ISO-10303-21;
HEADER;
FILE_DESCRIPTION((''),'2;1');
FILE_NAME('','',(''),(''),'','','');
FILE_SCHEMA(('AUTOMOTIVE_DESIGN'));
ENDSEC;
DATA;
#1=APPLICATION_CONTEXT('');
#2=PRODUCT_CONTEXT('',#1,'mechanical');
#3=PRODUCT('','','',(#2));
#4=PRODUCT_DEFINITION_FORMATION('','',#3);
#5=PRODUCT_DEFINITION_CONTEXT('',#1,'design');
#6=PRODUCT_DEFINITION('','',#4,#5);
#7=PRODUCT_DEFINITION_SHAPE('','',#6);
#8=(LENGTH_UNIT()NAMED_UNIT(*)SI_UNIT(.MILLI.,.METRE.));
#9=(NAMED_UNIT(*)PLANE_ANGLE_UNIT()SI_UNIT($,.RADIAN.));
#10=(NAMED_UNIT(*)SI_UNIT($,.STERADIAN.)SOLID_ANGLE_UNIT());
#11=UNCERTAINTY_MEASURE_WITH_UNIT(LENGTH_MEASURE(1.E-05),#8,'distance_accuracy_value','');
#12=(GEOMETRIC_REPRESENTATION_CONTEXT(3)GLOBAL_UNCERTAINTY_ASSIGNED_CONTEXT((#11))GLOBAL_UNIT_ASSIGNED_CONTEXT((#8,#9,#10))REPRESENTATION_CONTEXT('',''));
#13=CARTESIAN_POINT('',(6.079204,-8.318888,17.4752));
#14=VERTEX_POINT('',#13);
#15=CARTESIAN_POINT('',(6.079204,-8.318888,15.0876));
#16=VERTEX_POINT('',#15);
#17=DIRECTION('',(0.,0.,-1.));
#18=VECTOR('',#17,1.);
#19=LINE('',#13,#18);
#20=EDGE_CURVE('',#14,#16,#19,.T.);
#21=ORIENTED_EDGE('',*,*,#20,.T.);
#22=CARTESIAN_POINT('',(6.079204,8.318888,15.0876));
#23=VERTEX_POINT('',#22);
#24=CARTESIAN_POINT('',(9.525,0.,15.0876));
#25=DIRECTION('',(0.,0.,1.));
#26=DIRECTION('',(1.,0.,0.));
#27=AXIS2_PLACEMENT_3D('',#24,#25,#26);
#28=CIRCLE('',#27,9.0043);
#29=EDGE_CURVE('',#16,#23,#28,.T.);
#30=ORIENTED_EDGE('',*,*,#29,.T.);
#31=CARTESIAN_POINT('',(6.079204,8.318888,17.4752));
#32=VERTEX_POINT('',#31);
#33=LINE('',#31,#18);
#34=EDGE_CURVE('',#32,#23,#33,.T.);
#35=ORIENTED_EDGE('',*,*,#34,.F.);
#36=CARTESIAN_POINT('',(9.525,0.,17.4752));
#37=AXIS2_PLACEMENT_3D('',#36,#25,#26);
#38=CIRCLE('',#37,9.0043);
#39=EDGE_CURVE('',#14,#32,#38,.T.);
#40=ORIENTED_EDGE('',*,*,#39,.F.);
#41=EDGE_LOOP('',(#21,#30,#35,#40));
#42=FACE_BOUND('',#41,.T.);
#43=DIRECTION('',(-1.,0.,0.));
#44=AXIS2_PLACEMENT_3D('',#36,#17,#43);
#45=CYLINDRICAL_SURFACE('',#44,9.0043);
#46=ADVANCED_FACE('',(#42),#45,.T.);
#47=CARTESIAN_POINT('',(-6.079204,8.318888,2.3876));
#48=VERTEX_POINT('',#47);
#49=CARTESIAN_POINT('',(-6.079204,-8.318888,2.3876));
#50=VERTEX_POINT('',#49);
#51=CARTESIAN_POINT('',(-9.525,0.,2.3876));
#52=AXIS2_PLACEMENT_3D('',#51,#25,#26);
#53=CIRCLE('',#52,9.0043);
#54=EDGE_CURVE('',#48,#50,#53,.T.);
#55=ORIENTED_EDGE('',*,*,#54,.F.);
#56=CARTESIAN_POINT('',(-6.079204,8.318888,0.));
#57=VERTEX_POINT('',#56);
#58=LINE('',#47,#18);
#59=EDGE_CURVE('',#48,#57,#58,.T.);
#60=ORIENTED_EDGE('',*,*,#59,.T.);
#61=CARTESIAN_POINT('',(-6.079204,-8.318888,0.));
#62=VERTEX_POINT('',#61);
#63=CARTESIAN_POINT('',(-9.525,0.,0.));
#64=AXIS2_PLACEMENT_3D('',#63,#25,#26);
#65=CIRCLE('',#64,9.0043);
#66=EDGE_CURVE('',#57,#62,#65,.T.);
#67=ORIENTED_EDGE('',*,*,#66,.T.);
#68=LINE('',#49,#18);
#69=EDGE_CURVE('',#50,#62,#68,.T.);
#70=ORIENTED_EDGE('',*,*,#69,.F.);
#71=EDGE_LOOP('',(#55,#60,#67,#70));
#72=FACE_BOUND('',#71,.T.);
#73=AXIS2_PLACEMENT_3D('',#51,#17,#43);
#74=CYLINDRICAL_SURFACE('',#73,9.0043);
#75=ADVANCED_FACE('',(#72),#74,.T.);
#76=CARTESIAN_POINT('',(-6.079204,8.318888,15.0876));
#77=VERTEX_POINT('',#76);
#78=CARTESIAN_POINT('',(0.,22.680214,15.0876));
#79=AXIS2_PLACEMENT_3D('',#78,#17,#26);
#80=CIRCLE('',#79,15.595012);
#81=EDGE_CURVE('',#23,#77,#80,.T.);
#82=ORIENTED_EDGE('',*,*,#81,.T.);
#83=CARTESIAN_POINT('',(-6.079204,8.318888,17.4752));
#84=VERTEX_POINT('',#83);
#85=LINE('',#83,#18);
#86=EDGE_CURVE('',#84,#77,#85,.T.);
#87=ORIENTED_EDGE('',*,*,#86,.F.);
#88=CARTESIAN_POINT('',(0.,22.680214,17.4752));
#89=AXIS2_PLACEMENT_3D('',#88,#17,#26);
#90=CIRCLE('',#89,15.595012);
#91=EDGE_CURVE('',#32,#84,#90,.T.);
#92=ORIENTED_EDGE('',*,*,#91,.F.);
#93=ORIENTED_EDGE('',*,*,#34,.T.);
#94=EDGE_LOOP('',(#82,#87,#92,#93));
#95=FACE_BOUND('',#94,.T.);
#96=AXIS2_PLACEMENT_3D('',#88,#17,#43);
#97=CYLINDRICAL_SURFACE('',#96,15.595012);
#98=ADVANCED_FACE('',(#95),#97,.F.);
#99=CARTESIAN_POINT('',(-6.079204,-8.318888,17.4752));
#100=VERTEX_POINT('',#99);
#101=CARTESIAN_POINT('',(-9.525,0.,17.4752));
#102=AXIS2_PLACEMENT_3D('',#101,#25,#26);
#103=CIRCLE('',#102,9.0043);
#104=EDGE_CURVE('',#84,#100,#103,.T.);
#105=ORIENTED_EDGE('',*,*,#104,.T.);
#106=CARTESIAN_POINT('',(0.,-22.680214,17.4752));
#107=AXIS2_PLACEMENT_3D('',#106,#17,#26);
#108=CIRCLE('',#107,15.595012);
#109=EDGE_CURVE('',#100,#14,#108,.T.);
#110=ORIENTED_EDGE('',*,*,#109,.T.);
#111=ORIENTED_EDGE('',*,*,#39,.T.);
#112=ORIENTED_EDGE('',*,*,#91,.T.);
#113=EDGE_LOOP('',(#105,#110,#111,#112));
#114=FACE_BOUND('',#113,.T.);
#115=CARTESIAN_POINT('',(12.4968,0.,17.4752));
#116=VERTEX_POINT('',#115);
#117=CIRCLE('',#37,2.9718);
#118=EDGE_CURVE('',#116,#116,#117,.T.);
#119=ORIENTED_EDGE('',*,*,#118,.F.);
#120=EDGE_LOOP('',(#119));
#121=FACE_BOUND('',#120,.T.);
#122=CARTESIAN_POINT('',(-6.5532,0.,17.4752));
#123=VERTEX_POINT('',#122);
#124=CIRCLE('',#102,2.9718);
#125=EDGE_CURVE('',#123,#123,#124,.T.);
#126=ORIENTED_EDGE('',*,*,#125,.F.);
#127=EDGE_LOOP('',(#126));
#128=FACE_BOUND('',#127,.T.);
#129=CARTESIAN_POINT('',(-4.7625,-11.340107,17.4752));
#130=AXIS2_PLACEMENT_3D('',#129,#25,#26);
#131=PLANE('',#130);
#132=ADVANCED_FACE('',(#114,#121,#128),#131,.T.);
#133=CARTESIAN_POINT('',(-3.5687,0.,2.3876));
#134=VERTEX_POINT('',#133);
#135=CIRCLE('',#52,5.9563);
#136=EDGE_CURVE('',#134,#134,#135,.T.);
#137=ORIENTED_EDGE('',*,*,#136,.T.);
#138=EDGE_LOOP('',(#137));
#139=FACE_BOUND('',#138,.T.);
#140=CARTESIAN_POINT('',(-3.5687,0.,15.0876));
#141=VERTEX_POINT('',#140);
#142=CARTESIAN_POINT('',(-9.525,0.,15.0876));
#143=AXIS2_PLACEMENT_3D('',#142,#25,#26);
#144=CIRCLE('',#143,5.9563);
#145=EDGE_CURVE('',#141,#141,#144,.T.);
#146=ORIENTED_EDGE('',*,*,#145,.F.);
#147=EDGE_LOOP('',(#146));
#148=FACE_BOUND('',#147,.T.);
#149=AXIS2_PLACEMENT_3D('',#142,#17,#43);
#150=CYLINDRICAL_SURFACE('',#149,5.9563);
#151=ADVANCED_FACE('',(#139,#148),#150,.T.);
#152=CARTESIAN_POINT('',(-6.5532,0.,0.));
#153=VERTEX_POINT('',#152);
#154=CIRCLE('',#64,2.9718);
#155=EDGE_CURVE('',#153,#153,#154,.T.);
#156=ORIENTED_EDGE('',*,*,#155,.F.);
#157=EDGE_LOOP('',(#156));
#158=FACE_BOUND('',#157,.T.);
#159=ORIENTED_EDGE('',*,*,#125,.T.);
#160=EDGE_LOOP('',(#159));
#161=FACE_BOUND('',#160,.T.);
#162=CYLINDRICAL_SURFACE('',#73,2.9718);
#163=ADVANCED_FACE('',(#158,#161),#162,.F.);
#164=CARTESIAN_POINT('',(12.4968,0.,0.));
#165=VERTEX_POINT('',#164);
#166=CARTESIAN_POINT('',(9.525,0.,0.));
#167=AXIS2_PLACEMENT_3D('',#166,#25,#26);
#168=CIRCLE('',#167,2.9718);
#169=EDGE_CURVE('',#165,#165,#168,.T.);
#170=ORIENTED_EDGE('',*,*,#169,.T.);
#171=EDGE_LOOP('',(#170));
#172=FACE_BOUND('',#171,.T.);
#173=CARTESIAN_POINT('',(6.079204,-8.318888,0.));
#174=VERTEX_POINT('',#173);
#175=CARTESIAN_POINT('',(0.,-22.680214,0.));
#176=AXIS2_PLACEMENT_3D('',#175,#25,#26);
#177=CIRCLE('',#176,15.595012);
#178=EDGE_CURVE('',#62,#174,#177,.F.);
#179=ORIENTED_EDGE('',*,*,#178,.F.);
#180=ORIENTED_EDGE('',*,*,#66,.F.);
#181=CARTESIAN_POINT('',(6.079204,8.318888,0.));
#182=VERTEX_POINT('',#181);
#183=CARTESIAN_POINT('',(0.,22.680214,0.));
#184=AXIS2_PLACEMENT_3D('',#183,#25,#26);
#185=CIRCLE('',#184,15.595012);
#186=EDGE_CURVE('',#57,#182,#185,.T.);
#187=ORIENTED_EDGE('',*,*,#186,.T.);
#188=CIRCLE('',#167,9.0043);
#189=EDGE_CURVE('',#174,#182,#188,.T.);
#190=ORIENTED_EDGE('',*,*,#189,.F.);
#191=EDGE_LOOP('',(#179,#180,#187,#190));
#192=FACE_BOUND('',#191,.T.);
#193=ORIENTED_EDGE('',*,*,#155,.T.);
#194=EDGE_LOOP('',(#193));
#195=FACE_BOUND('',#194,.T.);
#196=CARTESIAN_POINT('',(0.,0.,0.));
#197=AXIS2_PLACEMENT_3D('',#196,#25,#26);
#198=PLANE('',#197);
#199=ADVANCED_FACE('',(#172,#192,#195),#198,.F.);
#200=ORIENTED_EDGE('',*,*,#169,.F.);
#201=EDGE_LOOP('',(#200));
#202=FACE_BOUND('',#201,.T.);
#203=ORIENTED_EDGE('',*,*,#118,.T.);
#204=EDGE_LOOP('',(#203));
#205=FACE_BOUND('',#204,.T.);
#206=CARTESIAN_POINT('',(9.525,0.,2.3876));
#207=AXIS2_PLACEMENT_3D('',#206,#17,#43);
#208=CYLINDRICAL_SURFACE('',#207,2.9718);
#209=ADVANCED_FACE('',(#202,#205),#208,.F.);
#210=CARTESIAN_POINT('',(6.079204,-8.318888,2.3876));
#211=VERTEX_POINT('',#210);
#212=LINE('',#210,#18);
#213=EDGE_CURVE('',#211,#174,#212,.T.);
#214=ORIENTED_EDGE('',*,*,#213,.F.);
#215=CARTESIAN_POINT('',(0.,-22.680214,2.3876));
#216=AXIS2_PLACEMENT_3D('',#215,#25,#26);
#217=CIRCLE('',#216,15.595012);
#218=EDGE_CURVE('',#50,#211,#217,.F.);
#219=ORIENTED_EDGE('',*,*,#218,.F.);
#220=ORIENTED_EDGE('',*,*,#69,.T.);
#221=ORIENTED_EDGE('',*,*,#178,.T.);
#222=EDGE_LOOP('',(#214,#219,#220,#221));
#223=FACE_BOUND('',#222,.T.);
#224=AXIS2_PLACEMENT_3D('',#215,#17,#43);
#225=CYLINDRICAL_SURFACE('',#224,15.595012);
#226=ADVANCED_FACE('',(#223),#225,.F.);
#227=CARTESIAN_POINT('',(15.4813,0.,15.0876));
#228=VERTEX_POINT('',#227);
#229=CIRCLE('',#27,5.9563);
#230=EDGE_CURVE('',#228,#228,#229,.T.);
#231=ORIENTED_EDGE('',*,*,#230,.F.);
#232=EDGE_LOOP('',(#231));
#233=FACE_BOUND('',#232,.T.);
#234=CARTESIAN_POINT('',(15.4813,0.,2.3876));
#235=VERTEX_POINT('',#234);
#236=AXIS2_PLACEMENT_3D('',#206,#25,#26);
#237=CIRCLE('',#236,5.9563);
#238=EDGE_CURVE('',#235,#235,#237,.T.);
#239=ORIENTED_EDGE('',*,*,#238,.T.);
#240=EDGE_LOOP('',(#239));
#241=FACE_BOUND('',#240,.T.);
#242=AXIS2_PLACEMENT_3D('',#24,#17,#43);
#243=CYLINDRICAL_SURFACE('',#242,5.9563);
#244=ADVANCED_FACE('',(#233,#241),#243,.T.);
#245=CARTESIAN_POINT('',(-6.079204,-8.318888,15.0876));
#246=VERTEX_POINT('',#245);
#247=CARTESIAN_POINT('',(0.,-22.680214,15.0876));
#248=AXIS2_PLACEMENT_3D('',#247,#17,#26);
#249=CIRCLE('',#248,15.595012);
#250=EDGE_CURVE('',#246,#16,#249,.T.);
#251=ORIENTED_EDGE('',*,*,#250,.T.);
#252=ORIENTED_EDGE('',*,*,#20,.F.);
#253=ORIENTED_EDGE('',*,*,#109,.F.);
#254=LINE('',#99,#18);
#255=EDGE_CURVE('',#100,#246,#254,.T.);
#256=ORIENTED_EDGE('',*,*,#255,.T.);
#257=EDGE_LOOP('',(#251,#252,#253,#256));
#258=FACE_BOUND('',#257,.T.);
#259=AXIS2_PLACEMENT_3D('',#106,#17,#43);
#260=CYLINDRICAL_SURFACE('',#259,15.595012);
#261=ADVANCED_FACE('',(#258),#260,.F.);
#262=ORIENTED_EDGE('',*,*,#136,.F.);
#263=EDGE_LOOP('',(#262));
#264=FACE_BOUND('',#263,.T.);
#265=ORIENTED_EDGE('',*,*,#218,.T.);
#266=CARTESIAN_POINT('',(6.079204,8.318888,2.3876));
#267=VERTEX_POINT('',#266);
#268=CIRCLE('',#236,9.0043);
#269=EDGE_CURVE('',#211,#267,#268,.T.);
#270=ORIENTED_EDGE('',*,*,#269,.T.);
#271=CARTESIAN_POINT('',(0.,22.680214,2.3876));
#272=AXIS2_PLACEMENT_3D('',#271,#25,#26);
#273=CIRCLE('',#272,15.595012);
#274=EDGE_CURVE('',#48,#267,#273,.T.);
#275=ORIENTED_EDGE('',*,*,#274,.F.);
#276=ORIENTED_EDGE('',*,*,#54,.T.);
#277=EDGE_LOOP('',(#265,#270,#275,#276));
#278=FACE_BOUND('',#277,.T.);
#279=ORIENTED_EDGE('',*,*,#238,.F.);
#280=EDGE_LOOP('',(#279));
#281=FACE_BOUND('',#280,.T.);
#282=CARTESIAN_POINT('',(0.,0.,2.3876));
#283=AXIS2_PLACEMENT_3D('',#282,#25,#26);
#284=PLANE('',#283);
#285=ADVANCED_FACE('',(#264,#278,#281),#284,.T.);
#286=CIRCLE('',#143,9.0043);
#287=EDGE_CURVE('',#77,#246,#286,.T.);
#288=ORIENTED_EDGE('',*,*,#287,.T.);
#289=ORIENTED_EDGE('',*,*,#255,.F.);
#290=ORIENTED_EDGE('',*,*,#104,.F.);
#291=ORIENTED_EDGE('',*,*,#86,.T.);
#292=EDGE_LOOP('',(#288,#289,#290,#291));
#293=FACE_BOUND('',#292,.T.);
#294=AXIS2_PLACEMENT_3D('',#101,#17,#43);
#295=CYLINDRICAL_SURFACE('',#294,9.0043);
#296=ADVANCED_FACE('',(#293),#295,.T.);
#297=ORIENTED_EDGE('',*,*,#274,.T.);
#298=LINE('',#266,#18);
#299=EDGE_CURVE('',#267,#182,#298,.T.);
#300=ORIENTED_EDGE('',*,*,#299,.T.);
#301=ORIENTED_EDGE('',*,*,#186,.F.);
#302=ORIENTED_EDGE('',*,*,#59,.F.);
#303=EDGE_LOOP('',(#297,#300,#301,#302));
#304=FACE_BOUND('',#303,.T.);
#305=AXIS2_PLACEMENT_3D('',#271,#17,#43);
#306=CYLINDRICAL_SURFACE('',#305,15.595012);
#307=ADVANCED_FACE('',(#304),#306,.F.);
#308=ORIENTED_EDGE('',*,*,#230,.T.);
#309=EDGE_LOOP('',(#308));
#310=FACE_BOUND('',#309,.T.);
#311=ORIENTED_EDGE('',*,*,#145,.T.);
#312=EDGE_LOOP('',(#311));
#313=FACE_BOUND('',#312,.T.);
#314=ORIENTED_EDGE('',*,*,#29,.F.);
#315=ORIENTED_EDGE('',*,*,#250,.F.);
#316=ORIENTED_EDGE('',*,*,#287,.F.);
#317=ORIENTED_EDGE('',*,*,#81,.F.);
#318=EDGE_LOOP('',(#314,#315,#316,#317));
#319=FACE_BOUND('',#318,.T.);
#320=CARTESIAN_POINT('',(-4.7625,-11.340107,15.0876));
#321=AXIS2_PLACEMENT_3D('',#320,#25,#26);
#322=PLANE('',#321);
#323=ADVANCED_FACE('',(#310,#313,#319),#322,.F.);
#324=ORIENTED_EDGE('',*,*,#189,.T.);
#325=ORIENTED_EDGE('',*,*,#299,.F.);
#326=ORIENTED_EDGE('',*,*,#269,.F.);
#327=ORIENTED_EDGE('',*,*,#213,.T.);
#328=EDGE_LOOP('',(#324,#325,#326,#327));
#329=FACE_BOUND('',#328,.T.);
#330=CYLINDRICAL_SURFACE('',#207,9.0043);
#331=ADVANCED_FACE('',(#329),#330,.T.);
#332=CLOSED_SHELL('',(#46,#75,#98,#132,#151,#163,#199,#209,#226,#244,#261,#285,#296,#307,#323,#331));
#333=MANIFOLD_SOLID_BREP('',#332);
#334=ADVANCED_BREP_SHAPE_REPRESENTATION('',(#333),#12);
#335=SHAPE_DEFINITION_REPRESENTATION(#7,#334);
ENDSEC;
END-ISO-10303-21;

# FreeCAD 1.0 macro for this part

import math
import FreeCAD as App
import Part
import Sketcher

V = App.Vector
Q = App.Units.Quantity

doc = App.newDocument("Part")
params = doc.addObject("Spreadsheet::Sheet", "Params")
for row, (alias, value) in enumerate([
    ("sketch1_diameter", "0.234 in"),
    ("pad1_length", "0.094 in"),
    ("sketch2_diameter", "0.469 in"),
    ("sketch2_diameter2", "0.234 in"),
    ("pad2_length", "0.5 in"),
    ("sketch3_diameter", "0.234 in"),
    ("pad3_length", "0.094 in"),
], start=1):
    params.set(f"A{row}", alias)
    params.set(f"B{row}", "=" + value)
    params.setAlias(f"B{row}", alias)

body = doc.addObject("PartDesign::Body", "Body")

# Sketch on XY plane
sketch1 = body.newObject("Sketcher::SketchObject", "Sketch")
sketch1.AttachmentSupport = (doc.getObject("XY_Plane"), [""])
sketch1.MapMode = "FlatFace"
sketch1.addGeometry([
    Part.ArcOfCircle(Part.Circle(V(-9.53, 0, 0), V(0, 0, 1), 9), math.radians(90), math.radians(292)),  # 0
    Part.ArcOfCircle(Part.Circle(V(0, -22.68, 0), V(0, 0, 1), 15.6), math.radians(112.62), math.radians(112.94)),  # 1
    Part.ArcOfCircle(Part.Circle(V(0, -22.68, 0), V(0, 0, 1), 15.6), math.radians(67), math.radians(113)),  # 2
    Part.ArcOfCircle(Part.Circle(V(0, -22.68, 0), V(0, 0, 1), 15.6), math.radians(67.06), math.radians(67.38)),  # 3
    Part.ArcOfCircle(Part.Circle(V(9.52, 0, 0), V(0, 0, 1), 9), math.radians(-112), math.radians(0)),  # 4
    Part.ArcOfCircle(Part.Circle(V(9.53, 0, 0), V(0, 0, 1), 9), math.radians(0), math.radians(90)),  # 5
    Part.ArcOfCircle(Part.Circle(V(9.53, 0, 0), V(0, 0, 1), 9), math.radians(90), math.radians(112)),  # 6
    Part.ArcOfCircle(Part.Circle(V(0, 22.68, 0), V(0, 0, 1), 15.6), math.radians(-67.38), math.radians(-67.06)),  # 7
    Part.ArcOfCircle(Part.Circle(V(0, 22.68, 0), V(0, 0, 1), 15.6), math.radians(-90), math.radians(-67)),  # 8
    Part.ArcOfCircle(Part.Circle(V(0, 22.68, 0), V(0, 0, 1), 15.6), math.radians(-113), math.radians(-90)),  # 9
    Part.ArcOfCircle(Part.Circle(V(0, 22.68, 0), V(0, 0, 1), 15.6), math.radians(-112.94), math.radians(-112.62)),  # 10
    Part.ArcOfCircle(Part.Circle(V(-9.53, 0, 0), V(0, 0, 1), 9), math.radians(68), math.radians(90)),  # 11
    Part.Circle(V(-9.53, 0, 0), V(0, 0, 1), 2.97),  # 12
    Part.Circle(V(9.53, 0, 0), V(0, 0, 1), 2.97),  # 13
], False)
sketch1.addConstraint([
    Sketcher.Constraint("Coincident", 0, 2, 1, 2),
    Sketcher.Constraint("Tangent", 1, 1, 2, 2),
    Sketcher.Constraint("Tangent", 2, 1, 3, 2),
    Sketcher.Constraint("Coincident", 3, 1, 4, 1),
    Sketcher.Constraint("Tangent", 4, 2, 5, 1),
    Sketcher.Constraint("Tangent", 5, 2, 6, 1),
    Sketcher.Constraint("Coincident", 6, 2, 7, 2),
    Sketcher.Constraint("Tangent", 7, 1, 8, 2),
    Sketcher.Constraint("Tangent", 8, 1, 9, 2),
    Sketcher.Constraint("Tangent", 9, 1, 10, 2),
    Sketcher.Constraint("Coincident", 10, 1, 11, 1),
    Sketcher.Constraint("Tangent", 11, 2, 0, 1),
    Sketcher.Constraint("Coincident", 6, 3, 4, 3),
    Sketcher.Constraint("Coincident", 12, 3, 0, 3),
    Sketcher.Constraint("Coincident", 13, 3, 4, 3),
    Sketcher.Constraint("Equal", 1, 3),
    Sketcher.Constraint("Equal", 0, 4),
    Sketcher.Constraint("Equal", 3, 7),
    Sketcher.Constraint("Equal", 2, 8),
    Sketcher.Constraint("Equal", 8, 9),
    Sketcher.Constraint("Equal", 7, 10),
    Sketcher.Constraint("Equal", 6, 11),
    Sketcher.Constraint("Equal", 12, 13),
    Sketcher.Constraint("Symmetric", 0, 3, 4, 3, -1, 1),
    Sketcher.Constraint("Symmetric", 1, 3, 7, 3, -1, 1),
    Sketcher.Constraint("Symmetric", 1, 1, 2, 1, -2),
    Sketcher.Constraint("Symmetric", 5, 2, 11, 2, -2),
    Sketcher.Constraint("PointOnObject", 4, 2, -1),
    Sketcher.Constraint("PointOnObject", 8, 1, -2),
    Sketcher.Constraint("Horizontal", 7, 1, 9, 1),
    Sketcher.Constraint("Vertical", 13, 3, 5, 2),
    Sketcher.Constraint("Vertical", 2, 1, 7, 1),
    Sketcher.Constraint("Diameter", 12, Q("0.234 in")),
    Sketcher.Constraint("Radius", 0, Q("0.3545 in")),
    Sketcher.Constraint("DistanceX", 0, 3, 4, 3, Q("0.75 in")),
    Sketcher.Constraint("Radius", 2, 15.595012),
    Sketcher.Constraint("Radius", 1, 15.595054),
    Sketcher.Constraint("DistanceY", 1, 1, -1, 1, 8.284699),
    Sketcher.Constraint("DistanceY", 0, 2, -1, 1, 8.318888),
])
sketch1.setExpression("Constraints[32]", "Params.sketch1_diameter")
pad1 = body.newObject("PartDesign::Pad", "Pad")
pad1.Profile = sketch1
pad1.setExpression("Length", "Params.pad1_length")

# Sketch on XY plane
sketch2 = body.newObject("Sketcher::SketchObject", "Sketch001")
sketch2.AttachmentSupport = (doc.getObject("XY_Plane"), [""])
sketch2.MapMode = "FlatFace"
sketch2.AttachmentOffset = App.Placement(V(0, 0, 0.094 * 25.4), App.Rotation())
sketch2.addGeometry([
    Part.Circle(V(9.5, 0, 0), V(0, 0, 1), 6),
    Part.Circle(V(9.5, 0, 0), V(0, 0, 1), 3),
    Part.Circle(V(-9.5, 0, 0), V(0, 0, 1), 6),
    Part.Circle(V(-9.5, 0, 0), V(0, 0, 1), 3),
], False)
sketch2.addConstraint([
    Sketcher.Constraint("Coincident", 1, 3, 0, 3),
    Sketcher.Constraint("Coincident", 3, 3, 2, 3),
    Sketcher.Constraint("Equal", 0, 2),
    Sketcher.Constraint("Equal", 1, 3),
    Sketcher.Constraint("Symmetric", 0, 3, 2, 3, -1, 1),
    Sketcher.Constraint("PointOnObject", 0, 3, -1),
    Sketcher.Constraint("Diameter", 0, Q("0.469 in")),
    Sketcher.Constraint("Diameter", 1, Q("0.234 in")),
    Sketcher.Constraint("DistanceX", 2, 3, 0, 3, Q("0.75 in")),
])
sketch2.setExpression("Constraints[6]", "Params.sketch2_diameter")
sketch2.setExpression("Constraints[7]", "Params.sketch2_diameter2")
pad2 = body.newObject("PartDesign::Pad", "Pad001")
pad2.Profile = sketch2
pad2.setExpression("Length", "Params.pad2_length")

# Sketch on XY plane
sketch3 = body.newObject("Sketcher::SketchObject", "Sketch002")
sketch3.AttachmentSupport = (doc.getObject("XY_Plane"), [""])
sketch3.MapMode = "FlatFace"
sketch3.AttachmentOffset = App.Placement(V(0, 0, 0.594 * 25.4), App.Rotation())
sketch3.addGeometry([
    Part.ArcOfCircle(Part.Circle(V(9.5, 0, 0), V(0, 0, 1), 9), math.radians(-112), math.radians(112)),  # 0
    Part.ArcOfCircle(Part.Circle(V(0, 22.7, 0), V(0, 0, 1), 15.6), math.radians(-113), math.radians(-67)),  # 1
    Part.ArcOfCircle(Part.Circle(V(-9.5, 0, 0), V(0, 0, 1), 9), math.radians(68), math.radians(292)),  # 2
    Part.ArcOfCircle(Part.Circle(V(0, -22.7, 0), V(0, 0, 1), 15.6), math.radians(67), math.radians(113)),  # 3
    Part.Circle(V(-9.5, 0, 0), V(0, 0, 1), 3),  # 4
    Part.Circle(V(9.5, 0, 0), V(0, 0, 1), 3),  # 5
], False)
sketch3.addConstraint([
    Sketcher.Constraint("Coincident", 0, 2, 1, 2),
    Sketcher.Constraint("Coincident", 1, 1, 2, 1),
    Sketcher.Constraint("Coincident", 2, 2, 3, 2),
    Sketcher.Constraint("Coincident", 3, 1, 0, 1),
    Sketcher.Constraint("Coincident", 4, 3, 2, 3),
    Sketcher.Constraint("Coincident", 5, 3, 0, 3),
    Sketcher.Constraint("Equal", 0, 2),
    Sketcher.Constraint("Equal", 1, 3),
    Sketcher.Constraint("Equal", 4, 5),
    Sketcher.Constraint("Symmetric", 0, 3, 2, 3, -1, 1),
    Sketcher.Constraint("Symmetric", 1, 3, 3, 3, -1, 1),
    Sketcher.Constraint("Symmetric", 0, 2, 1, 1, -2),
    Sketcher.Constraint("Diameter", 4, Q("0.234 in")),
    Sketcher.Constraint("Radius", 0, Q("0.3545 in")),
    Sketcher.Constraint("DistanceX", 2, 3, 0, 3, Q("0.75 in")),
    Sketcher.Constraint("Radius", 1, 15.595012),
    Sketcher.Constraint("DistanceY", -1, 1, 0, 2, 8.318888),
])
sketch3.setExpression("Constraints[12]", "Params.sketch3_diameter")
pad3 = body.newObject("PartDesign::Pad", "Pad002")
pad3.Profile = sketch3
pad3.setExpression("Length", "Params.pad3_length")

doc.recompute()
